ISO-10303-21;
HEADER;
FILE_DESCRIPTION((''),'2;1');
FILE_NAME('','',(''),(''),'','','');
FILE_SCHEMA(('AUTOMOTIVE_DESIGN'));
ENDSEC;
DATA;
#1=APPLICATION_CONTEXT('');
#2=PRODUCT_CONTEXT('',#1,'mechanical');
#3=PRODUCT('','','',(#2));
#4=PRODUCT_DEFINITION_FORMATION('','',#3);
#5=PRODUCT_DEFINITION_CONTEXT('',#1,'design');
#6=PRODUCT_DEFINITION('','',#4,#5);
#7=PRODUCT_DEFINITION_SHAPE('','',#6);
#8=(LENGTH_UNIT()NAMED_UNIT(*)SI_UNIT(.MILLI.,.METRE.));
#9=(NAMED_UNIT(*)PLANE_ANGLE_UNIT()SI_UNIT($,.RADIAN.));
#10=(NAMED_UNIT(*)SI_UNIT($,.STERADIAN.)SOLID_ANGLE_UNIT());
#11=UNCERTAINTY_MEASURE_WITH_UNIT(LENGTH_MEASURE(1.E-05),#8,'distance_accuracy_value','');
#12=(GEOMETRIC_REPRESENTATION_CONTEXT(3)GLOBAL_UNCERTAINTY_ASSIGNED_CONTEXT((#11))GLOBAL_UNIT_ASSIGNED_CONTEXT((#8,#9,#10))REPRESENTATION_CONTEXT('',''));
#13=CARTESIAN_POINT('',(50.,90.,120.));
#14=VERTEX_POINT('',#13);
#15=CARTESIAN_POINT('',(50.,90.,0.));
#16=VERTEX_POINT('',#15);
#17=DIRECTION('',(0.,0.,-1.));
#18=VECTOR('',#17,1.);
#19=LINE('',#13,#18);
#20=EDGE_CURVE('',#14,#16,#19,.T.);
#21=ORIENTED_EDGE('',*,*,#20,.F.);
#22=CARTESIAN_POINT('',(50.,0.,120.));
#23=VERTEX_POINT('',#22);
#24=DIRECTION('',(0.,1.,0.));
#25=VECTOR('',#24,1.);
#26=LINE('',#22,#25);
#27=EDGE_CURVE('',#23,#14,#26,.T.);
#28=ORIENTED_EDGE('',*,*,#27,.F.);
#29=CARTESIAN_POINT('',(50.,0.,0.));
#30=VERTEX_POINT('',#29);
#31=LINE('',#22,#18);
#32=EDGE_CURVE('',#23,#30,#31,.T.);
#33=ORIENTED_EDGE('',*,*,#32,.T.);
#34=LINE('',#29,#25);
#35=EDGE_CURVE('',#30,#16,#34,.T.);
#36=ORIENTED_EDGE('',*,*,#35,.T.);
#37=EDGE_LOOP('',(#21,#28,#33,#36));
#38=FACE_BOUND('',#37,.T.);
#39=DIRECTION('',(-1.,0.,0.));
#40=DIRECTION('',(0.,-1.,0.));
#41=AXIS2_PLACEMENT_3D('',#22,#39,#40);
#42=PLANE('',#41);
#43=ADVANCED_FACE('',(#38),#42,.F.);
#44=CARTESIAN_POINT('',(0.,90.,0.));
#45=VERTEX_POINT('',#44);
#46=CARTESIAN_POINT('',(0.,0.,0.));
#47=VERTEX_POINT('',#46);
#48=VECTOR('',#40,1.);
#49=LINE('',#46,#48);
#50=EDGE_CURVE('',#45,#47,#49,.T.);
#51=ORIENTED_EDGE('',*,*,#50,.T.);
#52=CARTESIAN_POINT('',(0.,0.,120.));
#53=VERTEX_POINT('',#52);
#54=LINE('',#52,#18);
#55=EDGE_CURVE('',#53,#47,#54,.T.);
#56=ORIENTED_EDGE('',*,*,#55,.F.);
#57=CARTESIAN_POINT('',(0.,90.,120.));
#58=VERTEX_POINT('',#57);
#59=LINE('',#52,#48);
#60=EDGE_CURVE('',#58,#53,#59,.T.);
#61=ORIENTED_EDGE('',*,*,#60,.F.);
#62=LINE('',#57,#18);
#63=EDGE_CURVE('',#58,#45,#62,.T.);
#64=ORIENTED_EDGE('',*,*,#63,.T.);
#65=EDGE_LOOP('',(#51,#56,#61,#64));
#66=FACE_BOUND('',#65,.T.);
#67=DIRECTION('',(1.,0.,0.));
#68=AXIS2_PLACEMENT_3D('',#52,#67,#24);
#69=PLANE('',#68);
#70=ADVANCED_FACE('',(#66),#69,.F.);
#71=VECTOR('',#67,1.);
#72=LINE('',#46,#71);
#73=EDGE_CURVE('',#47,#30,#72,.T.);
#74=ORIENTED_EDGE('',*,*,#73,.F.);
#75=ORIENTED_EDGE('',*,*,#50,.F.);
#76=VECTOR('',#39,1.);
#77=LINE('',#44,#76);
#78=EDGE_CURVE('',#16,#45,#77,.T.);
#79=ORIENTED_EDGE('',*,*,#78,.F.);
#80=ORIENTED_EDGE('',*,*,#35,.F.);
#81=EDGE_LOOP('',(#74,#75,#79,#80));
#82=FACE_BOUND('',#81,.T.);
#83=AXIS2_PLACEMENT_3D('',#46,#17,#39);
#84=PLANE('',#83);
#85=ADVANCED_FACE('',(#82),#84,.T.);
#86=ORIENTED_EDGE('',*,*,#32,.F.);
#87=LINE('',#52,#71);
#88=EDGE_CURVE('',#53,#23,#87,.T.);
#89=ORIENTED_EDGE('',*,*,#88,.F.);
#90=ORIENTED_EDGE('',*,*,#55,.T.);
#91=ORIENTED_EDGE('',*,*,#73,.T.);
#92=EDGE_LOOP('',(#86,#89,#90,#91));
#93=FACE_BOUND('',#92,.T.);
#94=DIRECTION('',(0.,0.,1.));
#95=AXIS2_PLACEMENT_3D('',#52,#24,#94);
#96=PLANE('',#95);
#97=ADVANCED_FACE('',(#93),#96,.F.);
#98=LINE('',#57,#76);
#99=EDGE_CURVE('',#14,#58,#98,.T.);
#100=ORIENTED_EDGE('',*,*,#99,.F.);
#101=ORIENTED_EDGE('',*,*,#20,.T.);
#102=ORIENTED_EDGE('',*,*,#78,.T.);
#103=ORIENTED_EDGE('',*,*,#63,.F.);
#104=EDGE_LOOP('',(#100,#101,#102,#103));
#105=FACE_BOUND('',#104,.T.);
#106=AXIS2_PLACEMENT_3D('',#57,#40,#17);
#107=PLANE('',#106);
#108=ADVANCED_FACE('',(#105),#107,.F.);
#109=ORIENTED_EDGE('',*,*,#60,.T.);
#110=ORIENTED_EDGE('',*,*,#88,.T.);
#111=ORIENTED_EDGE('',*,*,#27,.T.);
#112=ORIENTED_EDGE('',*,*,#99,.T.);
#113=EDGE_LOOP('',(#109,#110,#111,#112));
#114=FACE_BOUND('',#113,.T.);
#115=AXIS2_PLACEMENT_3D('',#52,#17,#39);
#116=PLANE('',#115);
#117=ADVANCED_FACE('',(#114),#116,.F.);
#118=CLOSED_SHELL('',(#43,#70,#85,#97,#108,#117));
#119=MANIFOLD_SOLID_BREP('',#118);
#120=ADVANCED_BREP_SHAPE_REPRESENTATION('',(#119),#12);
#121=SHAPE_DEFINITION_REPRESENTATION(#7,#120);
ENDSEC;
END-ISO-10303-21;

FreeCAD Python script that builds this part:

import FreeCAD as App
import Part
import Sketcher
Q = App.Units.Quantity

doc = App.newDocument("Part")
body = doc.addObject("PartDesign::Body", "Body")

sketch1 = body.newObject("Sketcher::SketchObject", "Sketch")
sketch1.AttachmentSupport = (doc.getObject("XY_Plane"), [""])
sketch1.MapMode = "FlatFace"
sketch1.addGeometry([
    Part.LineSegment(App.Vector(0, 90, 0), App.Vector(0, 0, 0)),
    Part.LineSegment(App.Vector(0, 0, 0), App.Vector(50, 0, 0)),
    Part.LineSegment(App.Vector(50, 0, 0), App.Vector(50, 90, 0)),
    Part.LineSegment(App.Vector(50, 90, 0), App.Vector(0, 90, 0)),
], False)
sketch1.addConstraint([
    Sketcher.Constraint("Coincident", 0, 2, 1, 1),
    Sketcher.Constraint("Coincident", 1, 2, 2, 1),
    Sketcher.Constraint("Coincident", 2, 2, 3, 1),
    Sketcher.Constraint("Coincident", 3, 2, 0, 1),
    Sketcher.Constraint("Vertical", 0),
    Sketcher.Constraint("Horizontal", 1),
    Sketcher.Constraint("Vertical", 2),
    Sketcher.Constraint("Horizontal", 3),
    Sketcher.Constraint("Coincident", 0, 2, -1, 1),
    Sketcher.Constraint("DistanceX", 1, 1, 1, 2, Q("50 mm")),
    Sketcher.Constraint("DistanceY", 0, 2, 0, 1, Q("90 mm")),
])
pad1 = body.newObject("PartDesign::Pad", "Pad")
pad1.Profile = sketch1
pad1.Length = 120

doc.recompute()
